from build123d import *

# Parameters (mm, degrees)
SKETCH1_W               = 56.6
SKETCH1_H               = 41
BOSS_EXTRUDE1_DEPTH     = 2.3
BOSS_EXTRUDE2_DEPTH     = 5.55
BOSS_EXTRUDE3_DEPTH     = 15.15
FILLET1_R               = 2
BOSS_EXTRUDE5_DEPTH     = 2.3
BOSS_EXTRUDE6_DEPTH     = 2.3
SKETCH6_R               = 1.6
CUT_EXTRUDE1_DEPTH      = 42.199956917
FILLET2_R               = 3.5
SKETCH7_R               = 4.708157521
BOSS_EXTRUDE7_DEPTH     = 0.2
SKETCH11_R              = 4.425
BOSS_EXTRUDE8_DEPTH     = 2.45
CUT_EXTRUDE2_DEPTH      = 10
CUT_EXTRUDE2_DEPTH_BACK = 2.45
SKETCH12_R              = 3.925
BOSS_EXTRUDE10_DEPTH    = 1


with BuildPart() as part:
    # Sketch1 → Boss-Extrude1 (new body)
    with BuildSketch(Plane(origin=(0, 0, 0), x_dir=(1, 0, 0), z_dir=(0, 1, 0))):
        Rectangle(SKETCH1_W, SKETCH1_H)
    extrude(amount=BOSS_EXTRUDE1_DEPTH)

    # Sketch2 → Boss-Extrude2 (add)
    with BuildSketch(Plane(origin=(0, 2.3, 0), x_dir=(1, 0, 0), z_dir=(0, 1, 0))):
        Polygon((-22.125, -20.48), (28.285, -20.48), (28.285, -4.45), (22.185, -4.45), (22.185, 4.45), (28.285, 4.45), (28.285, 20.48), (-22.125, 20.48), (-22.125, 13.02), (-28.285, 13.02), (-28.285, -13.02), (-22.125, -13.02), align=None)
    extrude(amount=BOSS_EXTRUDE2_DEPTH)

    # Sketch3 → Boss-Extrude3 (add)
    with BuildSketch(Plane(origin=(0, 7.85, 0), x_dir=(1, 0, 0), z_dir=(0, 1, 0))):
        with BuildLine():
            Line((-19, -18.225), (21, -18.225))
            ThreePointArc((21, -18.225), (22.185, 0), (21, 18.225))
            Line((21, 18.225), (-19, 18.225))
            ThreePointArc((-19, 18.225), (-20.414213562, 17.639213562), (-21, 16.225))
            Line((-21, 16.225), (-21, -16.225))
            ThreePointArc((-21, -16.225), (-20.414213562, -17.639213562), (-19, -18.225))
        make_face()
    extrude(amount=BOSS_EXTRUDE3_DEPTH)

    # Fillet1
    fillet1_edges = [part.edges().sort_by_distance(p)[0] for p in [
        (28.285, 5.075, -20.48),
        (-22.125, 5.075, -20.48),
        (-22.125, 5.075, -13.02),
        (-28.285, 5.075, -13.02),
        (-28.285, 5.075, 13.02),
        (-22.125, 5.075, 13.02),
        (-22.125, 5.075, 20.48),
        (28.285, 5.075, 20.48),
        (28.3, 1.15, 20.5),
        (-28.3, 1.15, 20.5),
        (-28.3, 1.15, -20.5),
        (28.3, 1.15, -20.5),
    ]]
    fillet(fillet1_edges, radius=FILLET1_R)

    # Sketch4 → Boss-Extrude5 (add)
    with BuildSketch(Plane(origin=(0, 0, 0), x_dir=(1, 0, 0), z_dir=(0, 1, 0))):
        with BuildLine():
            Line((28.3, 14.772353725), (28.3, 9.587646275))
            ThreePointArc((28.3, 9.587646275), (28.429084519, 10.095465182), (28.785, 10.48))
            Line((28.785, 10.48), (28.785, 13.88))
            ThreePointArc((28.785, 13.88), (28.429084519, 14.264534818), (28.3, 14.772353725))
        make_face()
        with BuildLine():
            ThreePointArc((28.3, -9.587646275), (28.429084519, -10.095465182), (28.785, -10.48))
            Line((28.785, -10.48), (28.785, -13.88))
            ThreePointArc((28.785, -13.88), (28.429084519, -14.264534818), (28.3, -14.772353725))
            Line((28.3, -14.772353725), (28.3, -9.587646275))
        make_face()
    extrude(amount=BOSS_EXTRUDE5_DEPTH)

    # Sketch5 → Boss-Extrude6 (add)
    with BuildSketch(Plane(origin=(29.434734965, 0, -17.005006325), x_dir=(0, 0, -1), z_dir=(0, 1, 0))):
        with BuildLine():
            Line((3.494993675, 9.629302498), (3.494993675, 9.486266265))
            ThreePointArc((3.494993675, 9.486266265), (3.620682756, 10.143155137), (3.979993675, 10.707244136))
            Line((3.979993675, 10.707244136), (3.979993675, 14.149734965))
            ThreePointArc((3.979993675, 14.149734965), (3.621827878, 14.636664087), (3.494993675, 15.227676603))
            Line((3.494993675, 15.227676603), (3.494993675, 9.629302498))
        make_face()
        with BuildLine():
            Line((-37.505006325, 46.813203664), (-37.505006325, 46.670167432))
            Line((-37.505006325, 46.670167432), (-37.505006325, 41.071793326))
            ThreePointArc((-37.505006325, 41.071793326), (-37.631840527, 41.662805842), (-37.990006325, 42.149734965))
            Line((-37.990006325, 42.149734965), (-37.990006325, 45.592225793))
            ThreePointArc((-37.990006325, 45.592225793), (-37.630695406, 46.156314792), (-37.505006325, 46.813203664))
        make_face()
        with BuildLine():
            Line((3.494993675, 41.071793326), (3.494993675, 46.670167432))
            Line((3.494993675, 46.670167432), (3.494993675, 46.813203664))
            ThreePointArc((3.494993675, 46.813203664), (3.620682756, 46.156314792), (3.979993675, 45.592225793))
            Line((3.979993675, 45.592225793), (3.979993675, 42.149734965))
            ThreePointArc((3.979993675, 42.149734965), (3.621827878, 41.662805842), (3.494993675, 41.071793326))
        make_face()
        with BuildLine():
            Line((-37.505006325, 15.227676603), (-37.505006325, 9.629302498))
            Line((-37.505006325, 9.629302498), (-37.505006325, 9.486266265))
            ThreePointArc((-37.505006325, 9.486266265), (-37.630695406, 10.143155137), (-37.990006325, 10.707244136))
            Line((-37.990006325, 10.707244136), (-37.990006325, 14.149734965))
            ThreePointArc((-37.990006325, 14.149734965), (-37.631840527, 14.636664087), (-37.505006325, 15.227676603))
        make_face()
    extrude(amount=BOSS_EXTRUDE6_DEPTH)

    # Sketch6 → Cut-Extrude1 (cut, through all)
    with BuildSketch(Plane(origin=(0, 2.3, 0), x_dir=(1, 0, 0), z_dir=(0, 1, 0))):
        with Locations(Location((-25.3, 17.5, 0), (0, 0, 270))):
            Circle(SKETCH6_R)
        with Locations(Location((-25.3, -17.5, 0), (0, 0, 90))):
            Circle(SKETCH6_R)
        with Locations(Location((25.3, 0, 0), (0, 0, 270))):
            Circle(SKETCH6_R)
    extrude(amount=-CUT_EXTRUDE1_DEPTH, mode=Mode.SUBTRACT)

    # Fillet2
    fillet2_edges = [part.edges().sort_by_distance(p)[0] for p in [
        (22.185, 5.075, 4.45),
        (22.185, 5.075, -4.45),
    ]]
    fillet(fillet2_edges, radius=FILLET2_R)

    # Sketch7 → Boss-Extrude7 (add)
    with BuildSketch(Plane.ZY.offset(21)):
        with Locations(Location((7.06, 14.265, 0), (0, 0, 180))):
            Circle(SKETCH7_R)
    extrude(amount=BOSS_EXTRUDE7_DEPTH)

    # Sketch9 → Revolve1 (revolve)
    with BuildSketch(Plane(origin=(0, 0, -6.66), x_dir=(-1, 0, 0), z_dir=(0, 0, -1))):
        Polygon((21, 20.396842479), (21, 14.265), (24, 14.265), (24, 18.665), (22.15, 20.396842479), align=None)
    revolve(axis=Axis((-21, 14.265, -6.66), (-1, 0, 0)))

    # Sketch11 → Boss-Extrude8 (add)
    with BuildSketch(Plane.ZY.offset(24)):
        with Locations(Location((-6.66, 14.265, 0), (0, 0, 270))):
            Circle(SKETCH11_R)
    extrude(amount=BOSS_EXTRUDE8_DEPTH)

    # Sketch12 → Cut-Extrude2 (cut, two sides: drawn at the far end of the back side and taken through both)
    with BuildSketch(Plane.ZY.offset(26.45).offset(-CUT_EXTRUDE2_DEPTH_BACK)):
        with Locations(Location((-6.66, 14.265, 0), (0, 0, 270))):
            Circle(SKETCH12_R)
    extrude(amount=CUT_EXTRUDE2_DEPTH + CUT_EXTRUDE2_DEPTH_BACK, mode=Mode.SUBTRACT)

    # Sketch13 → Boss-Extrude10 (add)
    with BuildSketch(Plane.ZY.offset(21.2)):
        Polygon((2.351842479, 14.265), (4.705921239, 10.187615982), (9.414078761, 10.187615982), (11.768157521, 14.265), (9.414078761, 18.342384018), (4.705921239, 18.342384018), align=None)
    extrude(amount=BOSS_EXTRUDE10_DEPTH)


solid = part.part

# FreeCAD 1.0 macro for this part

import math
import FreeCAD as App
import Part
import Sketcher

V = App.Vector
Q = App.Units.Quantity


def edges_at(feature, points):
    """Names of the edges that pass closest to the given points."""
    edges = feature.Shape.Edges
    near = lambda p: min(range(len(edges)), key=lambda i: edges[i].distToShape(Part.Vertex(*p))[0])
    return sorted({f"Edge{near(p) + 1}" for p in points})

doc = App.newDocument("Part")
body = doc.addObject("PartDesign::Body", "Body")

sketch1 = body.newObject("Sketcher::SketchObject", "Sketch")
sketch1.AttachmentSupport = (doc.getObject("XZ_Plane"), [""])
sketch1.MapMode = "FlatFace"
sketch1.addGeometry(Part.LineSegment(V(-28, -20, 0), V(-28, 20, 0)), False)
sketch1.addGeometry(Part.LineSegment(V(-28, 20, 0), V(28, 20, 0)), False)
sketch1.addGeometry(Part.LineSegment(V(28, 20, 0), V(28, -20, 0)), False)
sketch1.addGeometry(Part.LineSegment(V(28, -20, 0), V(-28, -20, 0)), False)
sketch1.addConstraint(Sketcher.Constraint("Coincident", 0, 2, 1, 1))
sketch1.addConstraint(Sketcher.Constraint("Coincident", 1, 2, 2, 1))
sketch1.addConstraint(Sketcher.Constraint("Coincident", 2, 2, 3, 1))
sketch1.addConstraint(Sketcher.Constraint("Coincident", 3, 2, 0, 1))
sketch1.addConstraint(Sketcher.Constraint("Vertical", 0))
sketch1.addConstraint(Sketcher.Constraint("Horizontal", 1))
sketch1.addConstraint(Sketcher.Constraint("Vertical", 2))
sketch1.addConstraint(Sketcher.Constraint("Horizontal", 3))
sketch1.addConstraint(Sketcher.Constraint("Symmetric", 0, 2, 2, 2, -1, 1))
sketch1.addConstraint(Sketcher.Constraint("DistanceY", 0, 1, 0, 2, 41.0))
sketch1.addConstraint(Sketcher.Constraint("DistanceX", 1, 1, 1, 2, 56.6))
pad1 = body.newObject("PartDesign::Pad", "Pad")
pad1.Profile = sketch1
pad1.Length = 2.3
pad1.Reversed = True

sketch2 = body.newObject("Sketcher::SketchObject", "Sketch001")
sketch2.AttachmentSupport = (doc.getObject("XZ_Plane"), [""])
sketch2.MapMode = "FlatFace"
sketch2.AttachmentOffset = App.Placement(V(0, 0, -2.3), App.Rotation())
sketch2.addGeometry(Part.LineSegment(V(-22, 20, 0), V(28, 20, 0)), False)
sketch2.addGeometry(Part.LineSegment(V(28, 20, 0), V(28, 4, 0)), False)
sketch2.addGeometry(Part.LineSegment(V(28, 4, 0), V(22, 4, 0)), False)
sketch2.addGeometry(Part.LineSegment(V(22, 4, 0), V(22, -4, 0)), False)
sketch2.addGeometry(Part.LineSegment(V(22, -4, 0), V(28, -4, 0)), False)
sketch2.addGeometry(Part.LineSegment(V(28, -4, 0), V(28, -20, 0)), False)
sketch2.addGeometry(Part.LineSegment(V(28, -20, 0), V(-22, -20, 0)), False)
sketch2.addGeometry(Part.LineSegment(V(-22, -20, 0), V(-22, -13, 0)), False)
sketch2.addGeometry(Part.LineSegment(V(-22, -13, 0), V(-28, -13, 0)), False)
sketch2.addGeometry(Part.LineSegment(V(-28, -13, 0), V(-28, 13, 0)), False)
sketch2.addGeometry(Part.LineSegment(V(-28, 13, 0), V(-22, 13, 0)), False)
sketch2.addGeometry(Part.LineSegment(V(-22, 13, 0), V(-22, 20, 0)), False)
sketch2.addConstraint(Sketcher.Constraint("Coincident", 0, 2, 1, 1))
sketch2.addConstraint(Sketcher.Constraint("Coincident", 1, 2, 2, 1))
sketch2.addConstraint(Sketcher.Constraint("Coincident", 2, 2, 3, 1))
sketch2.addConstraint(Sketcher.Constraint("Coincident", 3, 2, 4, 1))
sketch2.addConstraint(Sketcher.Constraint("Coincident", 4, 2, 5, 1))
sketch2.addConstraint(Sketcher.Constraint("Coincident", 5, 2, 6, 1))
sketch2.addConstraint(Sketcher.Constraint("Coincident", 6, 2, 7, 1))
sketch2.addConstraint(Sketcher.Constraint("Coincident", 7, 2, 8, 1))
sketch2.addConstraint(Sketcher.Constraint("Coincident", 8, 2, 9, 1))
sketch2.addConstraint(Sketcher.Constraint("Coincident", 9, 2, 10, 1))
sketch2.addConstraint(Sketcher.Constraint("Coincident", 10, 2, 11, 1))
sketch2.addConstraint(Sketcher.Constraint("Coincident", 11, 2, 0, 1))
sketch2.addConstraint(Sketcher.Constraint("Horizontal", 0))
sketch2.addConstraint(Sketcher.Constraint("Vertical", 1))
sketch2.addConstraint(Sketcher.Constraint("Horizontal", 2))
sketch2.addConstraint(Sketcher.Constraint("Vertical", 3))
sketch2.addConstraint(Sketcher.Constraint("Horizontal", 4))
sketch2.addConstraint(Sketcher.Constraint("Vertical", 5))
sketch2.addConstraint(Sketcher.Constraint("Horizontal", 6))
sketch2.addConstraint(Sketcher.Constraint("Vertical", 7))
sketch2.addConstraint(Sketcher.Constraint("Horizontal", 8))
sketch2.addConstraint(Sketcher.Constraint("Vertical", 9))
sketch2.addConstraint(Sketcher.Constraint("Horizontal", 10))
sketch2.addConstraint(Sketcher.Constraint("Vertical", 11))
sketch2.addConstraint(Sketcher.Constraint("Symmetric", 1, 2, 4, 2, -1))
sketch2.addConstraint(Sketcher.Constraint("Symmetric", 7, 2, 10, 2, -1))
sketch2.addConstraint(Sketcher.Constraint("Equal", 1, 5))
sketch2.addConstraint(Sketcher.Constraint("DistanceX", 2, 2, 2, 1, 6.1))
sketch2.addConstraint(Sketcher.Constraint("DistanceY", 3, 2, 3, 1, 8.9))
sketch2.addConstraint(Sketcher.Constraint("DistanceX", 0, 1, 0, 2, 50.41))
sketch2.addConstraint(Sketcher.Constraint("DistanceX", 8, 2, 8, 1, 6.16))
sketch2.addConstraint(Sketcher.Constraint("DistanceY", 1, 2, 1, 1, 16.03))
sketch2.addConstraint(Sketcher.Constraint("DistanceY", 7, 1, 7, 2, 7.46))
sketch2.addConstraint(Sketcher.Constraint("DistanceX", -1, 1, 0, 2, 28.285))
pad2 = body.newObject("PartDesign::Pad", "Pad001")
pad2.Profile = sketch2
pad2.Length = 5.55
pad2.Reversed = True

sketch3 = body.newObject("Sketcher::SketchObject", "Sketch002")
sketch3.AttachmentSupport = (doc.getObject("XZ_Plane"), [""])
sketch3.MapMode = "FlatFace"
sketch3.AttachmentOffset = App.Placement(V(0, 0, -7.85), App.Rotation())
sketch3.addGeometry(Part.LineSegment(V(-19, 18.2, 0), V(21, 18.2, 0)), False)
sketch3.addGeometry(Part.ArcOfCircle(Part.Circle(V(-118.6, 0, 0), V(0, 0, 1), 140.7), math.radians(-7.44), math.radians(7.44)), False)
sketch3.addGeometry(Part.LineSegment(V(21, -18.2, 0), V(-19, -18.2, 0)), False)
sketch3.addGeometry(Part.ArcOfCircle(Part.Circle(V(-19, -16.2, 0), V(0, 0, 1), 2), math.radians(-180), math.radians(-90)), False)
sketch3.addGeometry(Part.LineSegment(V(-21, -16.2, 0), V(-21, 16.2, 0)), False)
sketch3.addGeometry(Part.ArcOfCircle(Part.Circle(V(-19, 16.2, 0), V(0, 0, 1), 2), math.radians(90), math.radians(180)), False)
sketch3.addConstraint(Sketcher.Constraint("Coincident", 0, 2, 1, 2))
sketch3.addConstraint(Sketcher.Constraint("Coincident", 1, 1, 2, 1))
sketch3.addConstraint(Sketcher.Constraint("Tangent", 2, 2, 3, 2))
sketch3.addConstraint(Sketcher.Constraint("Tangent", 3, 1, 4, 1))
sketch3.addConstraint(Sketcher.Constraint("Tangent", 4, 2, 5, 2))
sketch3.addConstraint(Sketcher.Constraint("Tangent", 5, 1, 0, 1))
sketch3.addConstraint(Sketcher.Constraint("Horizontal", 0))
sketch3.addConstraint(Sketcher.Constraint("Horizontal", 2))
sketch3.addConstraint(Sketcher.Constraint("Vertical", 4))
sketch3.addConstraint(Sketcher.Constraint("Equal", 3, 5))
sketch3.addConstraint(Sketcher.Constraint("Symmetric", 0, 2, 1, 1, -1))
sketch3.addConstraint(Sketcher.Constraint("Radius", 3, 2.0))
sketch3.addConstraint(Sketcher.Constraint("DistanceX", 0, 1, 0, 2, 40.0))
sketch3.addConstraint(Sketcher.Constraint("DistanceX", 3, 3, -1, 1, 19.0))
sketch3.addConstraint(Sketcher.Constraint("DistanceY", 4, 1, 4, 2, 32.45))
sketch3.addConstraint(Sketcher.Constraint("Radius", 1, 140.740443))
pad3 = body.newObject("PartDesign::Pad", "Pad002")
pad3.Profile = sketch3
pad3.Length = 15.15
pad3.Reversed = True
doc.recompute()

fillet = body.newObject("PartDesign::Fillet", "Fillet")
fillet.Base = (pad3, edges_at(pad3, [
    (28.285, 5.075, -20.48),
    (-22.125, 5.075, -20.48),
    (-22.125, 5.075, -13.02),
    (-28.285, 5.075, -13.02),
    (-28.285, 5.075, 13.02),
    (-22.125, 5.075, 13.02),
    (-22.125, 5.075, 20.48),
    (28.285, 5.075, 20.48),
    (28.3, 1.15, 20.5),
    (-28.3, 1.15, 20.5),
    (-28.3, 1.15, -20.5),
    (28.3, 1.15, -20.5),
]))
fillet.Radius = 2

sketch4 = body.newObject("Sketcher::SketchObject", "Sketch003")
sketch4.AttachmentSupport = (doc.getObject("XZ_Plane"), [""])
sketch4.MapMode = "FlatFace"
sketch4.addGeometry(Part.LineSegment(V(28.3, -14.8, 0), V(28.3, -9.6, 0)), False)
sketch4.addGeometry(Part.ArcOfCircle(Part.Circle(V(29.4, -9.6, 0), V(0, 0, 1), 1.1), math.radians(-180), math.radians(-123)), False)
sketch4.addGeometry(Part.LineSegment(V(28.8, -10.5, 0), V(28.8, -13.9, 0)), False)
sketch4.addGeometry(Part.ArcOfCircle(Part.Circle(V(29.4, -14.8, 0), V(0, 0, 1), 1.1), math.radians(123), math.radians(180)), False)
sketch4.addGeometry(Part.ArcOfCircle(Part.Circle(V(29.4, 9.6, 0), V(0, 0, 1), 1.1), math.radians(123), math.radians(180)), False)
sketch4.addGeometry(Part.LineSegment(V(28.3, 9.6, 0), V(28.3, 14.8, 0)), False)
sketch4.addGeometry(Part.ArcOfCircle(Part.Circle(V(29.4, 14.8, 0), V(0, 0, 1), 1.1), math.radians(-180), math.radians(-123)), False)
sketch4.addGeometry(Part.LineSegment(V(28.8, 13.9, 0), V(28.8, 10.5, 0)), False)
sketch4.addConstraint(Sketcher.Constraint("Tangent", 0, 2, 1, 1))
sketch4.addConstraint(Sketcher.Constraint("Coincident", 1, 2, 2, 1))
sketch4.addConstraint(Sketcher.Constraint("Coincident", 2, 2, 3, 1))
sketch4.addConstraint(Sketcher.Constraint("Tangent", 3, 2, 0, 1))
sketch4.addConstraint(Sketcher.Constraint("Tangent", 4, 2, 5, 1))
sketch4.addConstraint(Sketcher.Constraint("Tangent", 5, 2, 6, 1))
sketch4.addConstraint(Sketcher.Constraint("Coincident", 6, 2, 7, 1))
sketch4.addConstraint(Sketcher.Constraint("Coincident", 7, 2, 4, 1))
sketch4.addConstraint(Sketcher.Constraint("Vertical", 0))
sketch4.addConstraint(Sketcher.Constraint("Vertical", 2))
sketch4.addConstraint(Sketcher.Constraint("Vertical", 5))
sketch4.addConstraint(Sketcher.Constraint("Vertical", 7))
sketch4.addConstraint(Sketcher.Constraint("Equal", 1, 3))
sketch4.addConstraint(Sketcher.Constraint("Equal", 3, 4))
sketch4.addConstraint(Sketcher.Constraint("Equal", 4, 6))
sketch4.addConstraint(Sketcher.Constraint("Symmetric", 1, 3, 4, 3, -1))
sketch4.addConstraint(Sketcher.Constraint("Symmetric", 2, 2, 6, 2, -1))
sketch4.addConstraint(Sketcher.Constraint("DistanceY", 2, 2, 2, 1, 3.4))
sketch4.addConstraint(Sketcher.Constraint("DistanceX", -1, 1, 0, 2, 28.3))
sketch4.addConstraint(Sketcher.Constraint("DistanceY", 1, 2, -1, 1, 10.48))
sketch4.addConstraint(Sketcher.Constraint("DistanceX", -1, 1, 1, 2, 28.785))
sketch4.addConstraint(Sketcher.Constraint("Radius", 1, 1.063423))
pad4 = body.newObject("PartDesign::Pad", "Pad003")
pad4.Profile = sketch4
pad4.Length = 2.3
pad4.Reversed = True

sketch5 = body.newObject("Sketcher::SketchObject", "Sketch004")
sketch5.AttachmentSupport = (doc.getObject("XZ_Plane"), [""])
sketch5.MapMode = "FlatFace"
sketch5.addGeometry(Part.ArcOfCircle(Part.Circle(V(19.9, -22.3, 0), V(0, 0, 1), 1.8), math.radians(90), math.radians(133)), False)
sketch5.addGeometry(Part.LineSegment(V(18.7, -21, 0), V(15.3, -21, 0)), False)
sketch5.addGeometry(Part.ArcOfCircle(Part.Circle(V(14.2, -21.9, 0), V(0, 0, 1), 1.4), math.radians(42), math.radians(90)), False)
sketch5.addGeometry(Part.LineSegment(V(14.2, -20.5, 0), V(19.9, -20.5, 0)), False)
sketch5.addGeometry(Part.LineSegment(V(-11.6, 20.5, 0), V(-17.4, 20.5, 0)), False)
sketch5.addGeometry(Part.ArcOfCircle(Part.Circle(V(-17.4, 22.3, 0), V(0, 0, 1), 1.8), math.radians(-90), math.radians(-47)), False)
sketch5.addGeometry(Part.LineSegment(V(-16.2, 21, 0), V(-12.7, 21, 0)), False)
sketch5.addGeometry(Part.ArcOfCircle(Part.Circle(V(-11.6, 21.9, 0), V(0, 0, 1), 1.4), math.radians(-138), math.radians(-90)), False)
sketch5.addGeometry(Part.LineSegment(V(-17.4, -20.5, 0), V(-11.6, -20.5, 0)), False)
sketch5.addGeometry(Part.ArcOfCircle(Part.Circle(V(-11.6, -21.9, 0), V(0, 0, 1), 1.4), math.radians(90), math.radians(138)), False)
sketch5.addGeometry(Part.LineSegment(V(-12.7, -21, 0), V(-16.2, -21, 0)), False)
sketch5.addGeometry(Part.ArcOfCircle(Part.Circle(V(-17.4, -22.3, 0), V(0, 0, 1), 1.8), math.radians(47), math.radians(90)), False)
sketch5.addGeometry(Part.LineSegment(V(19.9, 20.5, 0), V(14.2, 20.5, 0)), False)
sketch5.addGeometry(Part.ArcOfCircle(Part.Circle(V(14.2, 21.9, 0), V(0, 0, 1), 1.4), math.radians(-90), math.radians(-42)), False)
sketch5.addGeometry(Part.LineSegment(V(15.3, 21, 0), V(18.7, 21, 0)), False)
sketch5.addGeometry(Part.ArcOfCircle(Part.Circle(V(19.9, 22.3, 0), V(0, 0, 1), 1.8), math.radians(-133), math.radians(-90)), False)
sketch5.addConstraint(Sketcher.Constraint("Coincident", 0, 2, 1, 1))
sketch5.addConstraint(Sketcher.Constraint("Coincident", 1, 2, 2, 1))
sketch5.addConstraint(Sketcher.Constraint("Tangent", 2, 2, 3, 1))
sketch5.addConstraint(Sketcher.Constraint("Tangent", 3, 2, 0, 1))
sketch5.addConstraint(Sketcher.Constraint("Tangent", 4, 2, 5, 1))
sketch5.addConstraint(Sketcher.Constraint("Coincident", 5, 2, 6, 1))
sketch5.addConstraint(Sketcher.Constraint("Coincident", 6, 2, 7, 1))
sketch5.addConstraint(Sketcher.Constraint("Tangent", 7, 2, 4, 1))
sketch5.addConstraint(Sketcher.Constraint("Tangent", 8, 2, 9, 1))
sketch5.addConstraint(Sketcher.Constraint("Coincident", 9, 2, 10, 1))
sketch5.addConstraint(Sketcher.Constraint("Coincident", 10, 2, 11, 1))
sketch5.addConstraint(Sketcher.Constraint("Tangent", 11, 2, 8, 1))
sketch5.addConstraint(Sketcher.Constraint("Tangent", 12, 2, 13, 1))
sketch5.addConstraint(Sketcher.Constraint("Coincident", 13, 2, 14, 1))
sketch5.addConstraint(Sketcher.Constraint("Coincident", 14, 2, 15, 1))
sketch5.addConstraint(Sketcher.Constraint("Tangent", 15, 2, 12, 1))
sketch5.addConstraint(Sketcher.Constraint("Horizontal", 1))
sketch5.addConstraint(Sketcher.Constraint("Horizontal", 3))
sketch5.addConstraint(Sketcher.Constraint("Horizontal", 4))
sketch5.addConstraint(Sketcher.Constraint("Horizontal", 6))
sketch5.addConstraint(Sketcher.Constraint("Horizontal", 8))
sketch5.addConstraint(Sketcher.Constraint("Horizontal", 10))
sketch5.addConstraint(Sketcher.Constraint("Horizontal", 12))
sketch5.addConstraint(Sketcher.Constraint("Horizontal", 14))
sketch5.addConstraint(Sketcher.Constraint("Equal", 0, 5))
sketch5.addConstraint(Sketcher.Constraint("Equal", 2, 7))
sketch5.addConstraint(Sketcher.Constraint("Equal", 7, 9))
sketch5.addConstraint(Sketcher.Constraint("Equal", 5, 11))
sketch5.addConstraint(Sketcher.Constraint("Equal", 9, 13))
sketch5.addConstraint(Sketcher.Constraint("Equal", 11, 15))
sketch5.addConstraint(Sketcher.Constraint("Symmetric", 7, 3, 9, 3, -1))
sketch5.addConstraint(Sketcher.Constraint("Symmetric", 2, 3, 13, 3, -1))
sketch5.addConstraint(Sketcher.Constraint("Symmetric", 5, 2, 10, 2, -1))
sketch5.addConstraint(Sketcher.Constraint("Symmetric", 0, 2, 14, 2, -1))
sketch5.addConstraint(Sketcher.Constraint("Horizontal", 2, 3, 9, 3))
sketch5.addConstraint(Sketcher.Constraint("Horizontal", 1, 2, 9, 2))
sketch5.addConstraint(Sketcher.Constraint("Equal", 3, 4))
sketch5.addConstraint(Sketcher.Constraint("DistanceY", 2, 2, -1, 1, 20.5))
sketch5.addConstraint(Sketcher.Constraint("DistanceY", 0, 2, -1, 1, 20.985))
sketch5.addConstraint(Sketcher.Constraint("DistanceX", -1, 1, 1, 2, 15.285))
sketch5.addConstraint(Sketcher.Constraint("DistanceX", 6, 2, -1, 1, 12.715))
sketch5.addConstraint(Sketcher.Constraint("Radius", 0, 1.779394))
sketch5.addConstraint(Sketcher.Constraint("Radius", 2, 1.440395))
sketch5.addConstraint(Sketcher.Constraint("DistanceX", 1, 2, 1, 1, 3.442491))
pad5 = body.newObject("PartDesign::Pad", "Pad004")
pad5.Profile = sketch5
pad5.Length = 2.3
pad5.Reversed = True

sketch6 = body.newObject("Sketcher::SketchObject", "Sketch005")
sketch6.AttachmentSupport = (doc.getObject("XZ_Plane"), [""])
sketch6.MapMode = "FlatFace"
sketch6.AttachmentOffset = App.Placement(V(0, 0, -2.3), App.Rotation())
sketch6.addGeometry(Part.Circle(V(-25.3, -17.5, 0), V(0, 0, 1), 1.6), False)
sketch6.addGeometry(Part.Circle(V(-25.3, 17.5, 0), V(0, 0, 1), 1.6), False)
sketch6.addGeometry(Part.Circle(V(25.3, 0, 0), V(0, 0, 1), 1.6), False)
sketch6.addConstraint(Sketcher.Constraint("Equal", 0, 1))
sketch6.addConstraint(Sketcher.Constraint("Equal", 1, 2))
sketch6.addConstraint(Sketcher.Constraint("Symmetric", 0, 3, 1, 3, -1))
sketch6.addConstraint(Sketcher.Constraint("PointOnObject", 2, 3, -1))
sketch6.addConstraint(Sketcher.Constraint("Diameter", 0, 3.2))
sketch6.addConstraint(Sketcher.Constraint("DistanceY", 0, 3, 1, 3, 35.0))
sketch6.addConstraint(Sketcher.Constraint("DistanceX", 0, 3, -1, 1, 25.3))
sketch6.addConstraint(Sketcher.Constraint("DistanceX", -1, 1, 2, 3, 25.3))
pocket1 = body.newObject("PartDesign::Pocket", "Pocket")
pocket1.Profile = sketch6
pocket1.Type = "ThroughAll"
pocket1.Reversed = True
doc.recompute()

fillet2 = body.newObject("PartDesign::Fillet", "Fillet001")
fillet2.Base = (pocket1, edges_at(pocket1, [(22.185, 5.075, 4.45), (22.185, 5.075, -4.45)]))
fillet2.Radius = 3.5

sketch7 = body.newObject("Sketcher::SketchObject", "Sketch006")
sketch7.AttachmentSupport = (doc.getObject("YZ_Plane"), [""])
sketch7.MapMode = "FlatFace"
sketch7.AttachmentOffset = App.Placement(V(0, 0, -21), App.Rotation())
sketch7.addGeometry(Part.Circle(V(14.3, 7.1, 0), V(0, 0, 1), 4.7), False)
sketch7.addConstraint(Sketcher.Constraint("DistanceY", -1, 1, 0, 3, 7.06))
sketch7.addConstraint(Sketcher.Constraint("Diameter", 0, 9.416315))
sketch7.addConstraint(Sketcher.Constraint("DistanceX", -1, 1, 0, 3, 14.265))
pad6 = body.newObject("PartDesign::Pad", "Pad005")
pad6.Profile = sketch7
pad6.Length = 0.2
pad6.Reversed = True

sketch8 = body.newObject("Sketcher::SketchObject", "Sketch007")
sketch8.AttachmentSupport = (doc.getObject("XY_Plane"), [""])
sketch8.MapMode = "FlatFace"
sketch8.AttachmentOffset = App.Placement(V(0, 0, -6.66), App.Rotation())
sketch8.addGeometry(Part.LineSegment(V(-21, 20.4, 0), V(-21, 14.3, 0)), False)
sketch8.addGeometry(Part.LineSegment(V(-21, 14.3, 0), V(-24, 14.3, 0)), False)
sketch8.addGeometry(Part.LineSegment(V(-24, 14.3, 0), V(-24, 18.7, 0)), False)
sketch8.addGeometry(Part.LineSegment(V(-24, 18.7, 0), V(-22.1, 20.4, 0)), False)
sketch8.addGeometry(Part.LineSegment(V(-22.1, 20.4, 0), V(-21, 20.4, 0)), False)
sketch8.addGeometry(Part.LineSegment(V(-21, 14.3, 0), V(-24, 14.3, 0)), True)
sketch8.addConstraint(Sketcher.Constraint("Coincident", 0, 2, 1, 1))
sketch8.addConstraint(Sketcher.Constraint("Coincident", 1, 2, 2, 1))
sketch8.addConstraint(Sketcher.Constraint("Coincident", 2, 2, 3, 1))
sketch8.addConstraint(Sketcher.Constraint("Coincident", 3, 2, 4, 1))
sketch8.addConstraint(Sketcher.Constraint("Coincident", 4, 2, 0, 1))
sketch8.addConstraint(Sketcher.Constraint("Vertical", 0))
sketch8.addConstraint(Sketcher.Constraint("Horizontal", 1))
sketch8.addConstraint(Sketcher.Constraint("Vertical", 2))
sketch8.addConstraint(Sketcher.Constraint("Horizontal", 4))
sketch8.addConstraint(Sketcher.Constraint("Horizontal", 5))
sketch8.addConstraint(Sketcher.Constraint("Coincident", 5, 1, 0, 2))
sketch8.addConstraint(Sketcher.Constraint("Vertical", 2, 2, 5, 2))
sketch8.addConstraint(Sketcher.Constraint("DistanceX", 1, 2, 1, 1, 3.0))
sketch8.addConstraint(Sketcher.Constraint("DistanceY", 2, 1, 2, 2, 4.4))
sketch8.addConstraint(Sketcher.Constraint("DistanceX", 0, 2, -1, 1, 21.0))
sketch8.addConstraint(Sketcher.Constraint("DistanceX", 4, 1, 4, 2, 1.15))
sketch8.addConstraint(Sketcher.Constraint("DistanceY", -1, 1, 0, 2, 14.265))
sketch8.addConstraint(Sketcher.Constraint("DistanceY", 0, 2, 0, 1, 6.131842))
revolution = body.newObject("PartDesign::Revolution", "Revolution")
revolution.Profile = sketch8
revolution.ReferenceAxis = (sketch8, ["Axis0"])
revolution.Angle = 360

sketch9 = body.newObject("Sketcher::SketchObject", "Sketch008")
sketch9.AttachmentSupport = (doc.getObject("YZ_Plane"), [""])
sketch9.MapMode = "FlatFace"
sketch9.AttachmentOffset = App.Placement(V(0, 0, -24), App.Rotation())
sketch9.addGeometry(Part.Circle(V(14.3, -6.7, 0), V(0, 0, 1), 4.4), False)
sketch9.addConstraint(Sketcher.Constraint("Diameter", 0, 8.85))
sketch9.addConstraint(Sketcher.Constraint("DistanceY", 0, 3, -1, 1, 6.66))
sketch9.addConstraint(Sketcher.Constraint("DistanceX", -1, 1, 0, 3, 14.265))
pad7 = body.newObject("PartDesign::Pad", "Pad006")
pad7.Profile = sketch9
pad7.Length = 2.45
pad7.Reversed = True

sketch10 = body.newObject("Sketcher::SketchObject", "Sketch009")
sketch10.AttachmentSupport = (doc.getObject("YZ_Plane"), [""])
sketch10.MapMode = "FlatFace"
sketch10.AttachmentOffset = App.Placement(V(0, 0, -26.45), App.Rotation())
sketch10.addGeometry(Part.Circle(V(14.3, -6.7, 0), V(0, 0, 1), 3.9), False)
sketch10.addConstraint(Sketcher.Constraint("Diameter", 0, 7.85))
sketch10.addConstraint(Sketcher.Constraint("DistanceY", 0, 3, -1, 1, 6.66))
sketch10.addConstraint(Sketcher.Constraint("DistanceX", -1, 1, 0, 3, 14.265))
pocket2 = body.newObject("PartDesign::Pocket", "Pocket001")
pocket2.Profile = sketch10
pocket2.Type = "TwoLengths"
pocket2.Length = 10
pocket2.Length2 = 2.45

sketch11 = body.newObject("Sketcher::SketchObject", "Sketch010")
sketch11.AttachmentSupport = (doc.getObject("YZ_Plane"), [""])
sketch11.MapMode = "FlatFace"
sketch11.AttachmentOffset = App.Placement(V(0, 0, -21.2), App.Rotation())
sketch11.addGeometry(Part.LineSegment(V(14.3, 2.4, 0), V(10.2, 4.7, 0)), False)
sketch11.addGeometry(Part.LineSegment(V(10.2, 4.7, 0), V(10.2, 9.4, 0)), False)
sketch11.addGeometry(Part.LineSegment(V(10.2, 9.4, 0), V(14.3, 11.8, 0)), False)
sketch11.addGeometry(Part.LineSegment(V(14.3, 11.8, 0), V(18.3, 9.4, 0)), False)
sketch11.addGeometry(Part.LineSegment(V(18.3, 9.4, 0), V(18.3, 4.7, 0)), False)
sketch11.addGeometry(Part.LineSegment(V(18.3, 4.7, 0), V(14.3, 2.4, 0)), False)
sketch11.addConstraint(Sketcher.Constraint("Coincident", 0, 2, 1, 1))
sketch11.addConstraint(Sketcher.Constraint("Coincident", 1, 2, 2, 1))
sketch11.addConstraint(Sketcher.Constraint("Coincident", 2, 2, 3, 1))
sketch11.addConstraint(Sketcher.Constraint("Coincident", 3, 2, 4, 1))
sketch11.addConstraint(Sketcher.Constraint("Coincident", 4, 2, 5, 1))
sketch11.addConstraint(Sketcher.Constraint("Coincident", 5, 2, 0, 1))
sketch11.addConstraint(Sketcher.Constraint("Vertical", 1))
sketch11.addConstraint(Sketcher.Constraint("Vertical", 4))
sketch11.addConstraint(Sketcher.Constraint("Parallel", 0, 3))
sketch11.addConstraint(Sketcher.Constraint("Parallel", 2, 5))
sketch11.addConstraint(Sketcher.Constraint("Horizontal", 1, 2, 3, 2))
sketch11.addConstraint(Sketcher.Constraint("Horizontal", 0, 2, 4, 2))
sketch11.addConstraint(Sketcher.Constraint("Vertical", 2, 2, 5, 2))
sketch11.addConstraint(Sketcher.Constraint("Angle", 0, Q("150 deg")))
sketch11.addConstraint(Sketcher.Constraint("DistanceX", -1, 1, 2, 2, 14.265))
sketch11.addConstraint(Sketcher.Constraint("DistanceY", 1, 1, 1, 2, 4.708158))
sketch11.addConstraint(Sketcher.Constraint("DistanceY", -1, 1, 0, 2, 4.705921))
sketch11.addConstraint(Sketcher.Constraint("DistanceY", 1, 2, 2, 2, 2.354079))
pad8 = body.newObject("PartDesign::Pad", "Pad007")
pad8.Profile = sketch11
pad8.Length = 1
pad8.Reversed = True

doc.recompute()
